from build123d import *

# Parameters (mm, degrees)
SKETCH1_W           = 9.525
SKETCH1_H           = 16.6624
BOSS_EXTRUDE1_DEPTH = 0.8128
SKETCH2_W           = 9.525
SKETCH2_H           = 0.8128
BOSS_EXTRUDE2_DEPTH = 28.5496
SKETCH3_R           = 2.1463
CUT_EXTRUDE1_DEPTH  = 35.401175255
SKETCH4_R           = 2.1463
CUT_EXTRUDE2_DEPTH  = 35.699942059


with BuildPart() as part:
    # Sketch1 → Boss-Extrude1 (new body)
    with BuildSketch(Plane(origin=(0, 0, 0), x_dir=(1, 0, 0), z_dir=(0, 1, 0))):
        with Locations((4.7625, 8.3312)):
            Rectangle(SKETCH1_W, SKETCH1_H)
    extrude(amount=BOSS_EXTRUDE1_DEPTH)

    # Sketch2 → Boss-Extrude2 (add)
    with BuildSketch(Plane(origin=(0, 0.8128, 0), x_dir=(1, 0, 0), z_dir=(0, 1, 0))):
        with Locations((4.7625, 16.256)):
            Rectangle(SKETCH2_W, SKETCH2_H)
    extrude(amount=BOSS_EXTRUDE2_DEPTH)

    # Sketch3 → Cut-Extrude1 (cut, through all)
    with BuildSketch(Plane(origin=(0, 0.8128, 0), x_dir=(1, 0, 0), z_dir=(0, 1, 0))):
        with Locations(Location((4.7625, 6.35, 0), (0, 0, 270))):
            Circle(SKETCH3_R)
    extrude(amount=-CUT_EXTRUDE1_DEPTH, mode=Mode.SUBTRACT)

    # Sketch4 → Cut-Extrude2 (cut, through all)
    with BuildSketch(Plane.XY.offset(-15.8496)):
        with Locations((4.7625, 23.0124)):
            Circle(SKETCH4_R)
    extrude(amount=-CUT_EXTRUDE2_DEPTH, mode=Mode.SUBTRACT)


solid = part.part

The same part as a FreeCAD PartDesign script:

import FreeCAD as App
import Part
import Sketcher

V = App.Vector
Q = App.Units.Quantity

doc = App.newDocument("Part")
body = doc.addObject("PartDesign::Body", "Body")

sketch1 = body.newObject("Sketcher::SketchObject", "Sketch")
sketch1.AttachmentSupport = (doc.getObject("XZ_Plane"), [""])
sketch1.MapMode = "FlatFace"
sketch1.addGeometry([
    Part.LineSegment(V(0, -17, 0), V(0, 0, 0)),
    Part.LineSegment(V(0, 0, 0), V(10, 0, 0)),
    Part.LineSegment(V(10, 0, 0), V(10, -17, 0)),
    Part.LineSegment(V(10, -17, 0), V(0, -17, 0)),
], False)
sketch1.addConstraint([
    Sketcher.Constraint("Coincident", 0, 2, 1, 1),
    Sketcher.Constraint("Coincident", 1, 2, 2, 1),
    Sketcher.Constraint("Coincident", 2, 2, 3, 1),
    Sketcher.Constraint("Coincident", 3, 2, 0, 1),
    Sketcher.Constraint("Vertical", 0),
    Sketcher.Constraint("Horizontal", 1),
    Sketcher.Constraint("Vertical", 2),
    Sketcher.Constraint("Horizontal", 3),
    Sketcher.Constraint("Coincident", 0, 2, -1, 1),
    Sketcher.Constraint("DistanceX", 1, 1, 1, 2, Q("0.375 in")),
    Sketcher.Constraint("DistanceY", 0, 1, 0, 2, Q("0.656 in")),
])
pad1 = body.newObject("PartDesign::Pad", "Pad")
pad1.Profile = sketch1
pad1.Length = Q("0.032 in")
pad1.Reversed = True

sketch2 = body.newObject("Sketcher::SketchObject", "Sketch001")
sketch2.AttachmentSupport = (doc.getObject("XZ_Plane"), [""])
sketch2.MapMode = "FlatFace"
sketch2.AttachmentOffset = App.Placement(V(0, 0, -0.032 * 25.4), App.Rotation())
sketch2.addGeometry([
    Part.LineSegment(V(0, -16.7, 0), V(0, -15.8, 0)),
    Part.LineSegment(V(0, -15.8, 0), V(9.5, -15.8, 0)),
    Part.LineSegment(V(9.5, -15.8, 0), V(9.5, -16.7, 0)),
    Part.LineSegment(V(9.5, -16.7, 0), V(0, -16.7, 0)),
], False)
sketch2.addConstraint([
    Sketcher.Constraint("Coincident", 0, 2, 1, 1),
    Sketcher.Constraint("Coincident", 1, 2, 2, 1),
    Sketcher.Constraint("Coincident", 2, 2, 3, 1),
    Sketcher.Constraint("Coincident", 3, 2, 0, 1),
    Sketcher.Constraint("Vertical", 0),
    Sketcher.Constraint("Horizontal", 1),
    Sketcher.Constraint("Vertical", 2),
    Sketcher.Constraint("Horizontal", 3),
    Sketcher.Constraint("PointOnObject", 0, 2, -2),
    Sketcher.Constraint("DistanceX", 1, 1, 1, 2, Q("0.375 in")),
    Sketcher.Constraint("DistanceY", 0, 1, 0, 2, Q("0.032 in")),
    Sketcher.Constraint("DistanceY", 0, 2, -1, 1, Q("0.624 in")),
])
pad2 = body.newObject("PartDesign::Pad", "Pad001")
pad2.Profile = sketch2
pad2.Length = Q("1.124 in")
pad2.Reversed = True

sketch3 = body.newObject("Sketcher::SketchObject", "Sketch002")
sketch3.AttachmentSupport = (doc.getObject("XZ_Plane"), [""])
sketch3.MapMode = "FlatFace"
sketch3.AttachmentOffset = App.Placement(V(0, 0, -0.032 * 25.4), App.Rotation())
sketch3.addGeometry(Part.Circle(V(4.8, -6.3, 0), V(0, 0, 1), 2.1), False)
sketch3.addConstraint([
    Sketcher.Constraint("Diameter", 0, Q("0.169 in")),
    Sketcher.Constraint("DistanceY", 0, 3, -1, 1, Q("0.25 in")),
    Sketcher.Constraint("DistanceX", -1, 1, 0, 3, Q("0.1875 in")),
])
pocket1 = body.newObject("PartDesign::Pocket", "Pocket")
pocket1.Profile = sketch3
pocket1.Type = "ThroughAll"
pocket1.Reversed = True

sketch4 = body.newObject("Sketcher::SketchObject", "Sketch003")
sketch4.AttachmentSupport = (doc.getObject("XY_Plane"), [""])
sketch4.MapMode = "FlatFace"
sketch4.AttachmentOffset = App.Placement(V(0, 0, -0.624 * 25.4), App.Rotation())
sketch4.addGeometry(Part.Circle(V(4.8, 23, 0), V(0, 0, 1), 2.1), False)
sketch4.addConstraint([
    Sketcher.Constraint("Diameter", 0, Q("0.169 in")),
    Sketcher.Constraint("DistanceX", -1, 1, 0, 3, Q("0.1875 in")),
    Sketcher.Constraint("DistanceY", -1, 1, 0, 3, Q("0.906 in")),
])
pocket2 = body.newObject("PartDesign::Pocket", "Pocket001")
pocket2.Profile = sketch4
pocket2.Type = "ThroughAll"

doc.recompute()
